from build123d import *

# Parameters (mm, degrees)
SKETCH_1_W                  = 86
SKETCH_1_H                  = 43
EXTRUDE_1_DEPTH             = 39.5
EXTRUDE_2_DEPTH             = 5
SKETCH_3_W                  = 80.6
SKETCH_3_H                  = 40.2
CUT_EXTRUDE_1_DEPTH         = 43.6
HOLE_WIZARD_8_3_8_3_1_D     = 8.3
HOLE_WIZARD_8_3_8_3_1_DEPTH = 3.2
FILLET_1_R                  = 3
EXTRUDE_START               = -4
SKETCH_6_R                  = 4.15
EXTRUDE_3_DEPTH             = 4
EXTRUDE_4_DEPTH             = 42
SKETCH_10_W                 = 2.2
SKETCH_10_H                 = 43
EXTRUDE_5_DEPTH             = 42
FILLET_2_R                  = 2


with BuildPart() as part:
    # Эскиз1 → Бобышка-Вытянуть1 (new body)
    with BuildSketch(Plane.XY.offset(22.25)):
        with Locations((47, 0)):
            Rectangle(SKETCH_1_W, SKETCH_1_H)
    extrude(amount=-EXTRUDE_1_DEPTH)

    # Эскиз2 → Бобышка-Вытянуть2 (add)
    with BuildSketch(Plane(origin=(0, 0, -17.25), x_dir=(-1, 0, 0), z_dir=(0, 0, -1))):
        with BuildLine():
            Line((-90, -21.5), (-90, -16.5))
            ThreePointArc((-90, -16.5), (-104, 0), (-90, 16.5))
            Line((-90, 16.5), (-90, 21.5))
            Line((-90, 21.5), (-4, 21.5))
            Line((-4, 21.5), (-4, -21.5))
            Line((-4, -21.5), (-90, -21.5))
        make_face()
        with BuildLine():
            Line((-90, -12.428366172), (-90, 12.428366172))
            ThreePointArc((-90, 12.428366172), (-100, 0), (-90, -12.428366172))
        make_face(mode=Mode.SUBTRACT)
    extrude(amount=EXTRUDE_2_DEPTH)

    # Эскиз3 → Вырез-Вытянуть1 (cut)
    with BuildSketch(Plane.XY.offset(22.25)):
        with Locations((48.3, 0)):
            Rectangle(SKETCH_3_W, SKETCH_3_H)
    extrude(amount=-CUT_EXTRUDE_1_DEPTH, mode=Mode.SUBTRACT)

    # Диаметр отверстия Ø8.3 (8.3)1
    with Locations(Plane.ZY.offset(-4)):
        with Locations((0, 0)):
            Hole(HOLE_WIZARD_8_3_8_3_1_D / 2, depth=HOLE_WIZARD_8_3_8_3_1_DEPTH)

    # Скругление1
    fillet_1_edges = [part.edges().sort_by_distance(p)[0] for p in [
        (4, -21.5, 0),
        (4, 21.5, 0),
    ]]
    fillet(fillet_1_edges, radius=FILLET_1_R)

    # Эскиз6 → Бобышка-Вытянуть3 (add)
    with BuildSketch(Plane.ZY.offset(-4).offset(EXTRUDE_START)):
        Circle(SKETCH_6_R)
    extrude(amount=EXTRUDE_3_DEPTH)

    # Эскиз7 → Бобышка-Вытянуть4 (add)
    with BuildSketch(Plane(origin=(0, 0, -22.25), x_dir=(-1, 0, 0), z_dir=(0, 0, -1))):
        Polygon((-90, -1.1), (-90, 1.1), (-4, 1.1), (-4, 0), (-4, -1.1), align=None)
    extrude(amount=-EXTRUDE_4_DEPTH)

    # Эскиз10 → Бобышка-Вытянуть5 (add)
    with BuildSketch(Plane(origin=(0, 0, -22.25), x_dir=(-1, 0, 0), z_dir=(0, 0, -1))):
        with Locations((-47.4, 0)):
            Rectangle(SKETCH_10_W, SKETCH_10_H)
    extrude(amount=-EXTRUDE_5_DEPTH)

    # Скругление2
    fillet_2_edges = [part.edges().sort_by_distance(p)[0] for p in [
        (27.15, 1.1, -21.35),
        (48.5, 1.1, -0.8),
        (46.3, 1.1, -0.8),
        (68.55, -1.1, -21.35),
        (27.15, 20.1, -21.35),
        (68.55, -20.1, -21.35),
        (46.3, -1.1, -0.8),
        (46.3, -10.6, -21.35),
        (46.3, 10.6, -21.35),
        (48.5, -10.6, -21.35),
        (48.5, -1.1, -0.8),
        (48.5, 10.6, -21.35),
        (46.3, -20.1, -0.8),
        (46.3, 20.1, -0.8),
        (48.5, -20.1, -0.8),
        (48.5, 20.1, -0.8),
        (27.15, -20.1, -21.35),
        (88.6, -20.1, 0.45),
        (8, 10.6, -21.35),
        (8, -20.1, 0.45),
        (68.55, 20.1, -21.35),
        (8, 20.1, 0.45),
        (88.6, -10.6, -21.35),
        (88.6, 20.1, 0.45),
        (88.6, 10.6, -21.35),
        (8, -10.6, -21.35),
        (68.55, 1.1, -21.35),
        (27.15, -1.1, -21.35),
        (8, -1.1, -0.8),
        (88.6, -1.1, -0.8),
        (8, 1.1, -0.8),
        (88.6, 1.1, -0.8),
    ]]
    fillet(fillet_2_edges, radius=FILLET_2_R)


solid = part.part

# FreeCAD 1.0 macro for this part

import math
import FreeCAD as App
import Part
import Sketcher
Q = App.Units.Quantity


def edges_at(feature, points):
    """Names of the edges that pass closest to the given points."""
    edges = feature.Shape.Edges
    near = lambda p: min(range(len(edges)), key=lambda i: edges[i].distToShape(Part.Vertex(*p))[0])
    return sorted({f"Edge{near(p) + 1}" for p in points})


def add_polygon(sketch, points):
    """Adds a closed chain of lines whose ends are joined by coincident constraints."""
    first, n = sketch.GeometryCount, len(points)
    for a, b in zip(points, points[1:] + points[:1]):
        sketch.addGeometry(Part.LineSegment(App.Vector(*a, 0), App.Vector(*b, 0)), False)
    for i in range(n):
        sketch.addConstraint(Sketcher.Constraint("Coincident", first + i, 2, first + (i + 1) % n, 1))

doc = App.newDocument("Part")
body = doc.addObject("PartDesign::Body", "Body")

sketch1 = body.newObject("Sketcher::SketchObject", "Sketch")
sketch1.AttachmentSupport = (doc.getObject("XY_Plane"), [""])
sketch1.MapMode = "FlatFace"
sketch1.AttachmentOffset = App.Placement(App.Vector(0, 0, 22.25), App.Rotation())
add_polygon(sketch1, [(4, 22), (4, -22), (90, -22), (90, 22)])
sketch1.addConstraint(Sketcher.Constraint("Vertical", 0))
sketch1.addConstraint(Sketcher.Constraint("Horizontal", 1))
sketch1.addConstraint(Sketcher.Constraint("Vertical", 2))
sketch1.addConstraint(Sketcher.Constraint("Horizontal", 3))
sketch1.addConstraint(Sketcher.Constraint("DistanceX", 1, 1, 1, 2, Q("86 mm")))
sketch1.addConstraint(Sketcher.Constraint("DistanceY", 0, 2, 0, 1, Q("43 mm")))
sketch1.addConstraint(Sketcher.Constraint("DistanceX", -1, 1, 0, 2, Q("4 mm")))
sketch1.addConstraint(Sketcher.Constraint("DistanceY", 0, 2, -1, 1, Q("21.5 mm")))
pad1 = body.newObject("PartDesign::Pad", "Pad")
pad1.Profile = sketch1
pad1.Length = 39.5
pad1.Reversed = True

sketch2 = body.newObject("Sketcher::SketchObject", "Sketch001")
sketch2.AttachmentSupport = (doc.getObject("XY_Plane"), [""])
sketch2.MapMode = "FlatFace"
sketch2.AttachmentOffset = App.Placement(App.Vector(0, 0, -17.25), App.Rotation())
sketch2.addGeometry(Part.LineSegment(App.Vector(90, -16, 0), App.Vector(90, -22, 0)), False)
sketch2.addGeometry(Part.LineSegment(App.Vector(90, -22, 0), App.Vector(4, -22, 0)), False)
sketch2.addGeometry(Part.LineSegment(App.Vector(4, -22, 0), App.Vector(4, 22, 0)), False)
sketch2.addGeometry(Part.LineSegment(App.Vector(4, 22, 0), App.Vector(90, 22, 0)), False)
sketch2.addGeometry(Part.LineSegment(App.Vector(90, 22, 0), App.Vector(90, 16, 0)), False)
sketch2.addGeometry(Part.ArcOfCircle(Part.Circle(App.Vector(87, 0, 0), App.Vector(0, 0, 1), 17), math.radians(-81), math.radians(81)), False)
sketch2.addGeometry(Part.ArcOfCircle(Part.Circle(App.Vector(87, 0, 0), App.Vector(0, 0, 1), 13), math.radians(-78), math.radians(78)), False)
sketch2.addGeometry(Part.LineSegment(App.Vector(90, 12, 0), App.Vector(90, -12, 0)), False)
sketch2.addConstraint(Sketcher.Constraint("Coincident", 0, 2, 1, 1))
sketch2.addConstraint(Sketcher.Constraint("Coincident", 1, 2, 2, 1))
sketch2.addConstraint(Sketcher.Constraint("Coincident", 2, 2, 3, 1))
sketch2.addConstraint(Sketcher.Constraint("Coincident", 3, 2, 4, 1))
sketch2.addConstraint(Sketcher.Constraint("Coincident", 4, 2, 5, 2))
sketch2.addConstraint(Sketcher.Constraint("Coincident", 5, 1, 0, 1))
sketch2.addConstraint(Sketcher.Constraint("Coincident", 6, 1, 7, 2))
sketch2.addConstraint(Sketcher.Constraint("Coincident", 7, 1, 6, 2))
sketch2.addConstraint(Sketcher.Constraint("Vertical", 0))
sketch2.addConstraint(Sketcher.Constraint("Horizontal", 1))
sketch2.addConstraint(Sketcher.Constraint("Vertical", 2))
sketch2.addConstraint(Sketcher.Constraint("Horizontal", 3))
sketch2.addConstraint(Sketcher.Constraint("Vertical", 4))
sketch2.addConstraint(Sketcher.Constraint("Vertical", 7))
sketch2.addConstraint(Sketcher.Constraint("Coincident", 6, 3, 5, 3))
sketch2.addConstraint(Sketcher.Constraint("Symmetric", 0, 2, 3, 2, -1))
sketch2.addConstraint(Sketcher.Constraint("PointOnObject", 5, 3, -1))
sketch2.addConstraint(Sketcher.Constraint("Vertical", 5, 1, 6, 1))
sketch2.addConstraint(Sketcher.Constraint("DistanceX", 1, 2, 1, 1, Q("86 mm")))
sketch2.addConstraint(Sketcher.Constraint("DistanceY", 0, 2, 0, 1, Q("5 mm")))
sketch2.addConstraint(Sketcher.Constraint("DistanceY", 2, 1, 2, 2, Q("43 mm")))
sketch2.addConstraint(Sketcher.Constraint("DistanceX", -1, 1, 0, 2, Q("90 mm")))
sketch2.addConstraint(Sketcher.Constraint("Radius", 5, Q("16.723214 mm")))
sketch2.addConstraint(Sketcher.Constraint("Radius", 6, Q("12.723214 mm")))
pad2 = body.newObject("PartDesign::Pad", "Pad001")
pad2.Profile = sketch2
pad2.Length = 5
pad2.Reversed = True

sketch3 = body.newObject("Sketcher::SketchObject", "Sketch002")
sketch3.AttachmentSupport = (doc.getObject("XY_Plane"), [""])
sketch3.MapMode = "FlatFace"
sketch3.AttachmentOffset = App.Placement(App.Vector(0, 0, 22.25), App.Rotation())
add_polygon(sketch3, [(8, 20), (8, -20), (89, -20), (89, 20)])
sketch3.addConstraint(Sketcher.Constraint("Vertical", 0))
sketch3.addConstraint(Sketcher.Constraint("Horizontal", 1))
sketch3.addConstraint(Sketcher.Constraint("Vertical", 2))
sketch3.addConstraint(Sketcher.Constraint("Horizontal", 3))
sketch3.addConstraint(Sketcher.Constraint("DistanceX", 1, 1, 1, 2, Q("80.6 mm")))
sketch3.addConstraint(Sketcher.Constraint("DistanceY", 0, 2, 0, 1, Q("40.2 mm")))
sketch3.addConstraint(Sketcher.Constraint("DistanceX", -1, 1, 0, 2, Q("8 mm")))
sketch3.addConstraint(Sketcher.Constraint("DistanceY", 0, 2, -1, 1, Q("20.1 mm")))
pocket1 = body.newObject("PartDesign::Pocket", "Pocket")
pocket1.Profile = sketch3
pocket1.Length = 43.6

sketch4 = body.newObject("Sketcher::SketchObject", "Sketch003")
sketch4.AttachmentSupport = (doc.getObject("YZ_Plane"), [""])
sketch4.MapMode = "FlatFace"
sketch4.AttachmentOffset = App.Placement(App.Vector(0, 0, 4), App.Rotation())
sketch4.addGeometry(Part.Circle(App.Vector(0, 0, 0), App.Vector(0, 0, 1), 4.2), False)
sketch4.addConstraint(Sketcher.Constraint("Coincident", 0, 3, -1, 1))
sketch4.addConstraint(Sketcher.Constraint("Diameter", 0, Q("8.3 mm")))
doc.recompute()
hole = body.newObject("PartDesign::Hole", "Hole")
hole.Profile = sketch4
hole.ThreadType = "None"
hole.Diameter = 8.3
hole.DepthType = "Dimension"
hole.Depth = 3.2
hole.DrillPoint = "Flat"
hole.Reversed = True
doc.recompute()

fillet = body.newObject("PartDesign::Fillet", "Fillet")
fillet.Base = (hole, edges_at(hole, [(4, -21.5, 0), (4, 21.5, 0)]))
fillet.Radius = 3

sketch5 = body.newObject("Sketcher::SketchObject", "Sketch004")
sketch5.AttachmentSupport = (doc.getObject("YZ_Plane"), [""])
sketch5.MapMode = "FlatFace"
sketch5.AttachmentOffset = App.Placement(App.Vector(0, 0, 8), App.Rotation())
sketch5.addGeometry(Part.Circle(App.Vector(0, 0, 0), App.Vector(0, 0, 1), 4.2), False)
sketch5.addConstraint(Sketcher.Constraint("Coincident", 0, 3, -1, 1))
sketch5.addConstraint(Sketcher.Constraint("Diameter", 0, Q("8.3 mm")))
pad3 = body.newObject("PartDesign::Pad", "Pad002")
pad3.Profile = sketch5
pad3.Length = 4
pad3.Reversed = True

sketch6 = body.newObject("Sketcher::SketchObject", "Sketch005")
sketch6.AttachmentSupport = (doc.getObject("XY_Plane"), [""])
sketch6.MapMode = "FlatFace"
sketch6.AttachmentOffset = App.Placement(App.Vector(0, 0, -22.25), App.Rotation())
add_polygon(sketch6, [(90, 1.1), (90, -1.1), (4, -1.1), (4, 1.1)])
sketch6.addConstraint(Sketcher.Constraint("Vertical", 0))
sketch6.addConstraint(Sketcher.Constraint("Horizontal", 1))
sketch6.addConstraint(Sketcher.Constraint("Vertical", 2))
sketch6.addConstraint(Sketcher.Constraint("Horizontal", 3))
sketch6.addConstraint(Sketcher.Constraint("DistanceX", 1, 2, 1, 1, Q("86 mm")))
sketch6.addConstraint(Sketcher.Constraint("DistanceY", 0, 2, 0, 1, Q("2.2 mm")))
sketch6.addConstraint(Sketcher.Constraint("DistanceX", -1, 1, 0, 2, Q("90 mm")))
sketch6.addConstraint(Sketcher.Constraint("DistanceY", 0, 2, -1, 1, Q("1.1 mm")))
pad4 = body.newObject("PartDesign::Pad", "Pad003")
pad4.Profile = sketch6
pad4.Length = 42

sketch7 = body.newObject("Sketcher::SketchObject", "Sketch006")
sketch7.AttachmentSupport = (doc.getObject("XY_Plane"), [""])
sketch7.MapMode = "FlatFace"
sketch7.AttachmentOffset = App.Placement(App.Vector(0, 0, -22.25), App.Rotation())
add_polygon(sketch7, [(48.5, 21.5), (48.5, -21.5), (46.3, -21.5), (46.3, 21.5)])
sketch7.addConstraint(Sketcher.Constraint("Vertical", 0))
sketch7.addConstraint(Sketcher.Constraint("Horizontal", 1))
sketch7.addConstraint(Sketcher.Constraint("Vertical", 2))
sketch7.addConstraint(Sketcher.Constraint("Horizontal", 3))
sketch7.addConstraint(Sketcher.Constraint("DistanceY", 0, 2, 0, 1, Q("43 mm")))
sketch7.addConstraint(Sketcher.Constraint("DistanceX", 1, 2, 1, 1, Q("2.2 mm")))
sketch7.addConstraint(Sketcher.Constraint("DistanceX", -1, 1, 0, 2, Q("48.5 mm")))
sketch7.addConstraint(Sketcher.Constraint("DistanceY", 0, 2, -1, 1, Q("21.5 mm")))
pad5 = body.newObject("PartDesign::Pad", "Pad004")
pad5.Profile = sketch7
pad5.Length = 42
doc.recompute()

fillet2 = body.newObject("PartDesign::Fillet", "Fillet001")
fillet2.Base = (pad5, edges_at(pad5, [
    (27.15, 1.1, -21.35),
    (48.5, 1.1, -0.8),
    (46.3, 1.1, -0.8),
    (68.55, -1.1, -21.35),
    (27.15, 20.1, -21.35),
    (68.55, -20.1, -21.35),
    (46.3, -1.1, -0.8),
    (46.3, -10.6, -21.35),
    (46.3, 10.6, -21.35),
    (48.5, -10.6, -21.35),
    (48.5, -1.1, -0.8),
    (48.5, 10.6, -21.35),
    (46.3, -20.1, -0.8),
    (46.3, 20.1, -0.8),
    (48.5, -20.1, -0.8),
    (48.5, 20.1, -0.8),
    (27.15, -20.1, -21.35),
    (88.6, -20.1, 0.45),
    (8, 10.6, -21.35),
    (8, -20.1, 0.45),
    (68.55, 20.1, -21.35),
    (8, 20.1, 0.45),
    (88.6, -10.6, -21.35),
    (88.6, 20.1, 0.45),
    (88.6, 10.6, -21.35),
    (8, -10.6, -21.35),
    (68.55, 1.1, -21.35),
    (27.15, -1.1, -21.35),
    (8, -1.1, -0.8),
    (88.6, -1.1, -0.8),
    (8, 1.1, -0.8),
    (88.6, 1.1, -0.8),
]))
fillet2.Radius = 2

doc.recompute()
